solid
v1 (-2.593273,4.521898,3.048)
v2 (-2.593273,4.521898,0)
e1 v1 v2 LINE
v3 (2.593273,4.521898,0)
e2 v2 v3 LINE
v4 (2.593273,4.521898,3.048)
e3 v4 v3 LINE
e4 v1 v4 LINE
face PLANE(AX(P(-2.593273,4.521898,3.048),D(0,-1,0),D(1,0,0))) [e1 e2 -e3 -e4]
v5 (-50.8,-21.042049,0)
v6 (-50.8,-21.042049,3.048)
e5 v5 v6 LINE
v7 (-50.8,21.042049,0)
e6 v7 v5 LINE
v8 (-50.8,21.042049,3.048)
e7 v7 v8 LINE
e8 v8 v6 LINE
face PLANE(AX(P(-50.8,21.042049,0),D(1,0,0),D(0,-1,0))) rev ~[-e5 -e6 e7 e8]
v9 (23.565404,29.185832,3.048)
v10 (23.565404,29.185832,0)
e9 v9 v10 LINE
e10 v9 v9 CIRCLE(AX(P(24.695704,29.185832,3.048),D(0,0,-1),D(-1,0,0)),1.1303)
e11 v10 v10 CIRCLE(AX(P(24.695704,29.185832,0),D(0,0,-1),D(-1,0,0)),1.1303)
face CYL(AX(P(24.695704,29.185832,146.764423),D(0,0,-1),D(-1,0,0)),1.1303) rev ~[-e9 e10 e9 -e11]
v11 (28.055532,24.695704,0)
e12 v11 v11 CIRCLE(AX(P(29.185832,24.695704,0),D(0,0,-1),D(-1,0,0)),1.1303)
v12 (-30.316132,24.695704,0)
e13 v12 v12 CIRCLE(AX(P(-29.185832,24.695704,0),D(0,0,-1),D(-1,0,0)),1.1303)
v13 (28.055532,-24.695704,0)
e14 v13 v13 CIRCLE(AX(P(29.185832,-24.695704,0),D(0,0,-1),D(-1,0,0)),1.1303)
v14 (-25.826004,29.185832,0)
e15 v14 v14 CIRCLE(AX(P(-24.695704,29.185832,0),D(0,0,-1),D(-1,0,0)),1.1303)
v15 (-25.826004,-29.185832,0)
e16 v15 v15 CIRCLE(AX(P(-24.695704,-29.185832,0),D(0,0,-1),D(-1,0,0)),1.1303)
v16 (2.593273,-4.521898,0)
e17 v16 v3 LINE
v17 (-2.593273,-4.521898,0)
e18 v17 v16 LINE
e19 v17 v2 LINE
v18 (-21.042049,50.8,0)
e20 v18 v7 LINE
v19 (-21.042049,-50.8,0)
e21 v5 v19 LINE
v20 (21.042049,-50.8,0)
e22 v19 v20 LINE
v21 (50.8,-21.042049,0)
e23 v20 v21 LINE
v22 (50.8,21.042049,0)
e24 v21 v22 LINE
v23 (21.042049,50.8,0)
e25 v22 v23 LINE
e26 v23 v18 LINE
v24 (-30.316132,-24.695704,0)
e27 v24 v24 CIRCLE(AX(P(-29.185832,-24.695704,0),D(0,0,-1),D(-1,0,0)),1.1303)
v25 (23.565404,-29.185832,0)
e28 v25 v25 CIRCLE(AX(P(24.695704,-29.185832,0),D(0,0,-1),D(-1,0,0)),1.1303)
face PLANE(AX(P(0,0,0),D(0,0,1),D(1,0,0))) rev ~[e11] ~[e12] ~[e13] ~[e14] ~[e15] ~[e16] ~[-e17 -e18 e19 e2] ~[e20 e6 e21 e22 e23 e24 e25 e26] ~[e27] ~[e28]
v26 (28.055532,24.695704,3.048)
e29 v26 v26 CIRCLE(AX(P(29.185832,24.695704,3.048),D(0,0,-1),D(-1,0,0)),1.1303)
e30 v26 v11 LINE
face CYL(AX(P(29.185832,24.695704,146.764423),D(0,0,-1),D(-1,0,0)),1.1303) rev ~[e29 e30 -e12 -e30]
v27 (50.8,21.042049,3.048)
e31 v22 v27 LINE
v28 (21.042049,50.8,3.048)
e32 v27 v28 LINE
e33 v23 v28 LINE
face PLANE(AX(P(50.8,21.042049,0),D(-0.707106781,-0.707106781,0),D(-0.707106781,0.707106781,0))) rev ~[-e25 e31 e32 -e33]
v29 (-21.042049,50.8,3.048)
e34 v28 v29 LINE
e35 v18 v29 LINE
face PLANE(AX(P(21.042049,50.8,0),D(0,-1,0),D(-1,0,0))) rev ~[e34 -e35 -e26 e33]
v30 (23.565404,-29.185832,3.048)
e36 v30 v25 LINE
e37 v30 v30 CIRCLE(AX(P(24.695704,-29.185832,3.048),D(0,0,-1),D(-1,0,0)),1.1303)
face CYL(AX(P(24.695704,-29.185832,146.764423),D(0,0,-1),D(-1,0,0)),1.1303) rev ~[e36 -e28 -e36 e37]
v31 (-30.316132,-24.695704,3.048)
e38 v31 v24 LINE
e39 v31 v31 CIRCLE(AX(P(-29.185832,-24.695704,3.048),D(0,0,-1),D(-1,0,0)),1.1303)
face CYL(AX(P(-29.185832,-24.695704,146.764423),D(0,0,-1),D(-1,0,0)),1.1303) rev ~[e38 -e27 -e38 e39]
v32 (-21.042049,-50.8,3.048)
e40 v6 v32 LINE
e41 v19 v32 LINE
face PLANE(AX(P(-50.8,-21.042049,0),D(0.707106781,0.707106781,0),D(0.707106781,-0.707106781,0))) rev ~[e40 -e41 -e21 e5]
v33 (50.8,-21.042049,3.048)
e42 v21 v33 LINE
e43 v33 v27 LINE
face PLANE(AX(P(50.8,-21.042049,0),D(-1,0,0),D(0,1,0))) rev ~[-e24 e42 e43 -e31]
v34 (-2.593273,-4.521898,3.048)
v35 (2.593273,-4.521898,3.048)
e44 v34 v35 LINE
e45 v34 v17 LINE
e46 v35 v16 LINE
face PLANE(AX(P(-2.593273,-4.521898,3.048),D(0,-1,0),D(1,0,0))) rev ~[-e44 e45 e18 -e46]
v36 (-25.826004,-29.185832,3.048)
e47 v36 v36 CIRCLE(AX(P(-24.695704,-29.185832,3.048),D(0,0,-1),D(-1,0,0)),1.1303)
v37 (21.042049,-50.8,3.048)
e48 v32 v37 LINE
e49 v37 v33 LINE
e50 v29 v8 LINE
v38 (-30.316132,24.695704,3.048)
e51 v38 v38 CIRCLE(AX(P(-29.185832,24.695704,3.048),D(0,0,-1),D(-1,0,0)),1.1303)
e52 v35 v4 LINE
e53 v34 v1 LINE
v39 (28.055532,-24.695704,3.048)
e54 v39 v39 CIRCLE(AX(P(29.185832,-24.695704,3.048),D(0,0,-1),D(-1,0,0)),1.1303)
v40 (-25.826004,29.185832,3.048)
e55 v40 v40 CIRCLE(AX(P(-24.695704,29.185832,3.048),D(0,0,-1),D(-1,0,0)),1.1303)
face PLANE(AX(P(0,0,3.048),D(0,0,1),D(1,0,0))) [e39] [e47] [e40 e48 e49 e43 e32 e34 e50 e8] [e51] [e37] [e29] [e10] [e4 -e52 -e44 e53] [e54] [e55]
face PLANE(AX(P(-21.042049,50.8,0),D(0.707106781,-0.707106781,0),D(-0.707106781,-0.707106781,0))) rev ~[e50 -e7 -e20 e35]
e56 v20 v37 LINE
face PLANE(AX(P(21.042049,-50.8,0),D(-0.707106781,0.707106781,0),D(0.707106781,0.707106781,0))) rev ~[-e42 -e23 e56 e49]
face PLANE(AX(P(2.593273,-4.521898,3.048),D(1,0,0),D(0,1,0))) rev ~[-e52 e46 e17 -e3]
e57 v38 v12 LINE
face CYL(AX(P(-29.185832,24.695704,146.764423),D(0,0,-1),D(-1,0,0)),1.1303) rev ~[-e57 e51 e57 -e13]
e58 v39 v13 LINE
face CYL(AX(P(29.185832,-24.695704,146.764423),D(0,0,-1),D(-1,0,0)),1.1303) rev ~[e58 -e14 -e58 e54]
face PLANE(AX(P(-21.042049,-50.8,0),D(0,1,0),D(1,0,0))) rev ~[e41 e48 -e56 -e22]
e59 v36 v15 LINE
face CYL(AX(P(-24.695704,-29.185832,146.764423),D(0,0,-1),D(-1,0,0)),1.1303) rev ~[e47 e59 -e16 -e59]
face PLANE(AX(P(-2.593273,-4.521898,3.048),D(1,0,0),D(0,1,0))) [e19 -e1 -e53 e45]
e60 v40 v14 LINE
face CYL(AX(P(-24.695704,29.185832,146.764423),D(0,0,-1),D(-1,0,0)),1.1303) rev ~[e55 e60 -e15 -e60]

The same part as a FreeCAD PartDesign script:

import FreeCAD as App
import Part
import Sketcher
Q = App.Units.Quantity

doc = App.newDocument("Part")
body = doc.addObject("PartDesign::Body", "Body")

# Sketch on XY plane
sketch1 = doc.addObject("Sketcher::SketchObject", "Sketch")
body.addObject(sketch1)
sketch1.AttachmentSupport = (doc.XY_Plane, [""])
sketch1.MapMode = "FlatFace"
sketch1.addGeometry([
    Part.LineSegment(App.Vector(21.042049, 50.8, 0), App.Vector(-21.042049, 50.8, 0)),  # 0
    Part.LineSegment(App.Vector(-21.042049, 50.8, 0), App.Vector(-50.8, 21.042049, 0)),  # 1
    Part.LineSegment(App.Vector(-50.8, 21.042049, 0), App.Vector(-50.8, -21.042049, 0)),  # 2
    Part.LineSegment(App.Vector(-50.8, -21.042049, 0), App.Vector(-21.042049, -50.8, 0)),  # 3
    Part.LineSegment(App.Vector(-21.042049, -50.8, 0), App.Vector(21.042049, -50.8, 0)),  # 4
    Part.LineSegment(App.Vector(21.042049, -50.8, 0), App.Vector(50.8, -21.042049, 0)),  # 5
    Part.LineSegment(App.Vector(50.8, -21.042049, 0), App.Vector(50.8, 21.042049, 0)),  # 6
    Part.LineSegment(App.Vector(50.8, 21.042049, 0), App.Vector(21.042049, 50.8, 0)),  # 7
], False)
sketch1.addConstraint([
    Sketcher.Constraint("Coincident", 0, 2, 1, 1),
    Sketcher.Constraint("Coincident", 1, 2, 2, 1),
    Sketcher.Constraint("Coincident", 2, 2, 3, 1),
    Sketcher.Constraint("Coincident", 3, 2, 4, 1),
    Sketcher.Constraint("Coincident", 4, 2, 5, 1),
    Sketcher.Constraint("Coincident", 5, 2, 6, 1),
    Sketcher.Constraint("Coincident", 6, 2, 7, 1),
    Sketcher.Constraint("Coincident", 7, 2, 0, 1),
    Sketcher.Constraint("Horizontal", 0),
    Sketcher.Constraint("Vertical", 2),
    Sketcher.Constraint("Horizontal", 4),
    Sketcher.Constraint("Vertical", 6),
    Sketcher.Constraint("Symmetric", 0, 2, 4, 2, -1, 1),
    Sketcher.Constraint("Symmetric", 1, 2, 5, 2, -1, 1),
    Sketcher.Constraint("Perpendicular", 1, 3),
    Sketcher.Constraint("Perpendicular", 5, 7),
    Sketcher.Constraint("Horizontal", 2, 2, 5, 2),
    Sketcher.Constraint("Horizontal", 1, 2, 6, 2),
    Sketcher.Constraint("Vertical", 0, 2, 3, 2),
    Sketcher.Constraint("Equal", 4, 2),
    Sketcher.Constraint("DistanceY", -1, 1, 0, 2, Q("2 in")),
    Sketcher.Constraint("DistanceX", 0, 2, 0, 1, 42.084098),
])
pad1 = doc.addObject("PartDesign::Pad", "Pad")
body.addObject(pad1)
pad1.Profile = sketch1
pad1.Length = Q("0.12 in")

# Sketch on XY plane
sketch2 = doc.addObject("Sketcher::SketchObject", "Sketch001")
body.addObject(sketch2)
sketch2.AttachmentSupport = (doc.XY_Plane, [""])
sketch2.MapMode = "FlatFace"
sketch2.AttachmentOffset = App.Placement(App.Vector(0, 0, 0.12 * 25.4), App.Rotation())
sketch2.addGeometry([
    Part.Circle(App.Vector(-24.695704, 29.185832, 0), App.Vector(0, 0, 1), 1.1303),  # 0
    Part.Circle(App.Vector(-29.185832, 24.695704, 0), App.Vector(0, 0, 1), 1.1303),  # 1
    Part.Circle(App.Vector(-29.185832, -24.695704, 0), App.Vector(0, 0, 1), 1.1303),  # 2
    Part.Circle(App.Vector(-24.695704, -29.185832, 0), App.Vector(0, 0, 1), 1.1303),  # 3
    Part.Circle(App.Vector(24.695704, -29.185832, 0), App.Vector(0, 0, 1), 1.1303),  # 4
    Part.Circle(App.Vector(29.185832, -24.695704, 0), App.Vector(0, 0, 1), 1.1303),  # 5
    Part.Circle(App.Vector(29.185832, 24.695704, 0), App.Vector(0, 0, 1), 1.1303),  # 6
    Part.Circle(App.Vector(24.695704, 29.185832, 0), App.Vector(0, 0, 1), 1.1303),  # 7
], False)
sketch2.addConstraint([
    Sketcher.Constraint("Equal", 0, 1),
    Sketcher.Constraint("Equal", 1, 2),
    Sketcher.Constraint("Equal", 2, 3),
    Sketcher.Constraint("Equal", 3, 4),
    Sketcher.Constraint("Equal", 4, 5),
    Sketcher.Constraint("Equal", 5, 6),
    Sketcher.Constraint("Equal", 6, 7),
    Sketcher.Constraint("Symmetric", 0, 3, 4, 3, -1, 1),
    Sketcher.Constraint("Symmetric", 1, 3, 5, 3, -1, 1),
    Sketcher.Constraint("Symmetric", 2, 3, 6, 3, -1, 1),
    Sketcher.Constraint("Symmetric", 3, 3, 7, 3, -1, 1),
    Sketcher.Constraint("Symmetric", 3, 3, 4, 3, -2),
    Sketcher.Constraint("Symmetric", 2, 3, 5, 3, -2),
    Sketcher.Constraint("Diameter", 0, Q("0.089 in")),
    Sketcher.Constraint("DistanceX", 1, 3, 0, 3, 4.490128),
    Sketcher.Constraint("DistanceY", 1, 3, 0, 3, 4.490128),
    Sketcher.Constraint("DistanceY", 2, 3, 1, 3, 49.391409),
    Sketcher.Constraint("DistanceX", 3, 3, 4, 3, 49.391409),
])
doc.recompute()
hole = doc.addObject("PartDesign::Hole", "Hole")
body.addObject(hole)
hole.Profile = sketch2
hole.ThreadType = "None"
hole.Diameter = Q("0.089 in")
hole.DepthType = "ThroughAll"

# Sketch on XY plane
sketch3 = doc.addObject("Sketcher::SketchObject", "Sketch002")
body.addObject(sketch3)
sketch3.AttachmentSupport = (doc.XY_Plane, [""])
sketch3.MapMode = "FlatFace"
sketch3.AttachmentOffset = App.Placement(App.Vector(0, 0, 0.12 * 25.4), App.Rotation())
sketch3.addGeometry([
    Part.LineSegment(App.Vector(-2.593273, 4.521898, 0), App.Vector(-2.593273, -4.521898, 0)),
    Part.LineSegment(App.Vector(-2.593273, -4.521898, 0), App.Vector(2.593273, -4.521898, 0)),
    Part.LineSegment(App.Vector(2.593273, -4.521898, 0), App.Vector(2.593273, 4.521898, 0)),
    Part.LineSegment(App.Vector(2.593273, 4.521898, 0), App.Vector(-2.593273, 4.521898, 0)),
], False)
sketch3.addConstraint([
    Sketcher.Constraint("Coincident", 0, 2, 1, 1),
    Sketcher.Constraint("Coincident", 1, 2, 2, 1),
    Sketcher.Constraint("Coincident", 2, 2, 3, 1),
    Sketcher.Constraint("Coincident", 3, 2, 0, 1),
    Sketcher.Constraint("Vertical", 0),
    Sketcher.Constraint("Horizontal", 1),
    Sketcher.Constraint("Vertical", 2),
    Sketcher.Constraint("Horizontal", 3),
    Sketcher.Constraint("Symmetric", 0, 2, 2, 2, -1, 1),
    Sketcher.Constraint("DistanceX", 1, 1, 1, 2, 5.186547),
    Sketcher.Constraint("DistanceY", 0, 2, 0, 1, 9.043795),
])
pocket1 = doc.addObject("PartDesign::Pocket", "Pocket")
body.addObject(pocket1)
pocket1.Profile = sketch3
pocket1.Length = Q("1 in")

doc.recompute()
